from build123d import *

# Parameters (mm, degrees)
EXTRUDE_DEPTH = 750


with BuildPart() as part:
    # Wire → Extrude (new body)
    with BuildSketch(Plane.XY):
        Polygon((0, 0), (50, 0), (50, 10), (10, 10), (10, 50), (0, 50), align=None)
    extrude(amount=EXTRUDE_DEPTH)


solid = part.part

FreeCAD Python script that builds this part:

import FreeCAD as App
import Part
import Sketcher

V = App.Vector


def add_polygon(sketch, points):
    """Adds a closed chain of lines whose ends are joined by coincident constraints."""
    first, n = sketch.GeometryCount, len(points)
    for a, b in zip(points, points[1:] + points[:1]):
        sketch.addGeometry(Part.LineSegment(App.Vector(*a, 0), App.Vector(*b, 0)), False)
    for i in range(n):
        sketch.addConstraint(Sketcher.Constraint("Coincident", first + i, 2, first + (i + 1) % n, 1))

doc = App.newDocument("Part")
body = doc.addObject("PartDesign::Body", "Body")

sketch1 = body.newObject("Sketcher::SketchObject", "Sketch")
sketch1.AttachmentSupport = (doc.getObject("XY_Plane"), [""])
sketch1.MapMode = "FlatFace"
add_polygon(sketch1, [(0, 0), (50, 0), (50, 10), (10, 10), (10, 50), (0, 50)])
sketch1.addConstraint([
    Sketcher.Constraint("Horizontal", 0),
    Sketcher.Constraint("Vertical", 1),
    Sketcher.Constraint("Horizontal", 2),
    Sketcher.Constraint("Vertical", 3),
    Sketcher.Constraint("Horizontal", 4),
    Sketcher.Constraint("Vertical", 5),
    Sketcher.Constraint("Coincident", 5, 2, -1, 1),
    Sketcher.Constraint("Equal", 4, 1),
    Sketcher.Constraint("Equal", 2, 3),
    Sketcher.Constraint("DistanceX", 0, 1, 0, 2, 50.0),
    Sketcher.Constraint("DistanceX", 2, 2, 2, 1, 40.0),
])
pad1 = body.newObject("PartDesign::Pad", "Pad")
pad1.Profile = sketch1
pad1.Length = 750

doc.recompute()
